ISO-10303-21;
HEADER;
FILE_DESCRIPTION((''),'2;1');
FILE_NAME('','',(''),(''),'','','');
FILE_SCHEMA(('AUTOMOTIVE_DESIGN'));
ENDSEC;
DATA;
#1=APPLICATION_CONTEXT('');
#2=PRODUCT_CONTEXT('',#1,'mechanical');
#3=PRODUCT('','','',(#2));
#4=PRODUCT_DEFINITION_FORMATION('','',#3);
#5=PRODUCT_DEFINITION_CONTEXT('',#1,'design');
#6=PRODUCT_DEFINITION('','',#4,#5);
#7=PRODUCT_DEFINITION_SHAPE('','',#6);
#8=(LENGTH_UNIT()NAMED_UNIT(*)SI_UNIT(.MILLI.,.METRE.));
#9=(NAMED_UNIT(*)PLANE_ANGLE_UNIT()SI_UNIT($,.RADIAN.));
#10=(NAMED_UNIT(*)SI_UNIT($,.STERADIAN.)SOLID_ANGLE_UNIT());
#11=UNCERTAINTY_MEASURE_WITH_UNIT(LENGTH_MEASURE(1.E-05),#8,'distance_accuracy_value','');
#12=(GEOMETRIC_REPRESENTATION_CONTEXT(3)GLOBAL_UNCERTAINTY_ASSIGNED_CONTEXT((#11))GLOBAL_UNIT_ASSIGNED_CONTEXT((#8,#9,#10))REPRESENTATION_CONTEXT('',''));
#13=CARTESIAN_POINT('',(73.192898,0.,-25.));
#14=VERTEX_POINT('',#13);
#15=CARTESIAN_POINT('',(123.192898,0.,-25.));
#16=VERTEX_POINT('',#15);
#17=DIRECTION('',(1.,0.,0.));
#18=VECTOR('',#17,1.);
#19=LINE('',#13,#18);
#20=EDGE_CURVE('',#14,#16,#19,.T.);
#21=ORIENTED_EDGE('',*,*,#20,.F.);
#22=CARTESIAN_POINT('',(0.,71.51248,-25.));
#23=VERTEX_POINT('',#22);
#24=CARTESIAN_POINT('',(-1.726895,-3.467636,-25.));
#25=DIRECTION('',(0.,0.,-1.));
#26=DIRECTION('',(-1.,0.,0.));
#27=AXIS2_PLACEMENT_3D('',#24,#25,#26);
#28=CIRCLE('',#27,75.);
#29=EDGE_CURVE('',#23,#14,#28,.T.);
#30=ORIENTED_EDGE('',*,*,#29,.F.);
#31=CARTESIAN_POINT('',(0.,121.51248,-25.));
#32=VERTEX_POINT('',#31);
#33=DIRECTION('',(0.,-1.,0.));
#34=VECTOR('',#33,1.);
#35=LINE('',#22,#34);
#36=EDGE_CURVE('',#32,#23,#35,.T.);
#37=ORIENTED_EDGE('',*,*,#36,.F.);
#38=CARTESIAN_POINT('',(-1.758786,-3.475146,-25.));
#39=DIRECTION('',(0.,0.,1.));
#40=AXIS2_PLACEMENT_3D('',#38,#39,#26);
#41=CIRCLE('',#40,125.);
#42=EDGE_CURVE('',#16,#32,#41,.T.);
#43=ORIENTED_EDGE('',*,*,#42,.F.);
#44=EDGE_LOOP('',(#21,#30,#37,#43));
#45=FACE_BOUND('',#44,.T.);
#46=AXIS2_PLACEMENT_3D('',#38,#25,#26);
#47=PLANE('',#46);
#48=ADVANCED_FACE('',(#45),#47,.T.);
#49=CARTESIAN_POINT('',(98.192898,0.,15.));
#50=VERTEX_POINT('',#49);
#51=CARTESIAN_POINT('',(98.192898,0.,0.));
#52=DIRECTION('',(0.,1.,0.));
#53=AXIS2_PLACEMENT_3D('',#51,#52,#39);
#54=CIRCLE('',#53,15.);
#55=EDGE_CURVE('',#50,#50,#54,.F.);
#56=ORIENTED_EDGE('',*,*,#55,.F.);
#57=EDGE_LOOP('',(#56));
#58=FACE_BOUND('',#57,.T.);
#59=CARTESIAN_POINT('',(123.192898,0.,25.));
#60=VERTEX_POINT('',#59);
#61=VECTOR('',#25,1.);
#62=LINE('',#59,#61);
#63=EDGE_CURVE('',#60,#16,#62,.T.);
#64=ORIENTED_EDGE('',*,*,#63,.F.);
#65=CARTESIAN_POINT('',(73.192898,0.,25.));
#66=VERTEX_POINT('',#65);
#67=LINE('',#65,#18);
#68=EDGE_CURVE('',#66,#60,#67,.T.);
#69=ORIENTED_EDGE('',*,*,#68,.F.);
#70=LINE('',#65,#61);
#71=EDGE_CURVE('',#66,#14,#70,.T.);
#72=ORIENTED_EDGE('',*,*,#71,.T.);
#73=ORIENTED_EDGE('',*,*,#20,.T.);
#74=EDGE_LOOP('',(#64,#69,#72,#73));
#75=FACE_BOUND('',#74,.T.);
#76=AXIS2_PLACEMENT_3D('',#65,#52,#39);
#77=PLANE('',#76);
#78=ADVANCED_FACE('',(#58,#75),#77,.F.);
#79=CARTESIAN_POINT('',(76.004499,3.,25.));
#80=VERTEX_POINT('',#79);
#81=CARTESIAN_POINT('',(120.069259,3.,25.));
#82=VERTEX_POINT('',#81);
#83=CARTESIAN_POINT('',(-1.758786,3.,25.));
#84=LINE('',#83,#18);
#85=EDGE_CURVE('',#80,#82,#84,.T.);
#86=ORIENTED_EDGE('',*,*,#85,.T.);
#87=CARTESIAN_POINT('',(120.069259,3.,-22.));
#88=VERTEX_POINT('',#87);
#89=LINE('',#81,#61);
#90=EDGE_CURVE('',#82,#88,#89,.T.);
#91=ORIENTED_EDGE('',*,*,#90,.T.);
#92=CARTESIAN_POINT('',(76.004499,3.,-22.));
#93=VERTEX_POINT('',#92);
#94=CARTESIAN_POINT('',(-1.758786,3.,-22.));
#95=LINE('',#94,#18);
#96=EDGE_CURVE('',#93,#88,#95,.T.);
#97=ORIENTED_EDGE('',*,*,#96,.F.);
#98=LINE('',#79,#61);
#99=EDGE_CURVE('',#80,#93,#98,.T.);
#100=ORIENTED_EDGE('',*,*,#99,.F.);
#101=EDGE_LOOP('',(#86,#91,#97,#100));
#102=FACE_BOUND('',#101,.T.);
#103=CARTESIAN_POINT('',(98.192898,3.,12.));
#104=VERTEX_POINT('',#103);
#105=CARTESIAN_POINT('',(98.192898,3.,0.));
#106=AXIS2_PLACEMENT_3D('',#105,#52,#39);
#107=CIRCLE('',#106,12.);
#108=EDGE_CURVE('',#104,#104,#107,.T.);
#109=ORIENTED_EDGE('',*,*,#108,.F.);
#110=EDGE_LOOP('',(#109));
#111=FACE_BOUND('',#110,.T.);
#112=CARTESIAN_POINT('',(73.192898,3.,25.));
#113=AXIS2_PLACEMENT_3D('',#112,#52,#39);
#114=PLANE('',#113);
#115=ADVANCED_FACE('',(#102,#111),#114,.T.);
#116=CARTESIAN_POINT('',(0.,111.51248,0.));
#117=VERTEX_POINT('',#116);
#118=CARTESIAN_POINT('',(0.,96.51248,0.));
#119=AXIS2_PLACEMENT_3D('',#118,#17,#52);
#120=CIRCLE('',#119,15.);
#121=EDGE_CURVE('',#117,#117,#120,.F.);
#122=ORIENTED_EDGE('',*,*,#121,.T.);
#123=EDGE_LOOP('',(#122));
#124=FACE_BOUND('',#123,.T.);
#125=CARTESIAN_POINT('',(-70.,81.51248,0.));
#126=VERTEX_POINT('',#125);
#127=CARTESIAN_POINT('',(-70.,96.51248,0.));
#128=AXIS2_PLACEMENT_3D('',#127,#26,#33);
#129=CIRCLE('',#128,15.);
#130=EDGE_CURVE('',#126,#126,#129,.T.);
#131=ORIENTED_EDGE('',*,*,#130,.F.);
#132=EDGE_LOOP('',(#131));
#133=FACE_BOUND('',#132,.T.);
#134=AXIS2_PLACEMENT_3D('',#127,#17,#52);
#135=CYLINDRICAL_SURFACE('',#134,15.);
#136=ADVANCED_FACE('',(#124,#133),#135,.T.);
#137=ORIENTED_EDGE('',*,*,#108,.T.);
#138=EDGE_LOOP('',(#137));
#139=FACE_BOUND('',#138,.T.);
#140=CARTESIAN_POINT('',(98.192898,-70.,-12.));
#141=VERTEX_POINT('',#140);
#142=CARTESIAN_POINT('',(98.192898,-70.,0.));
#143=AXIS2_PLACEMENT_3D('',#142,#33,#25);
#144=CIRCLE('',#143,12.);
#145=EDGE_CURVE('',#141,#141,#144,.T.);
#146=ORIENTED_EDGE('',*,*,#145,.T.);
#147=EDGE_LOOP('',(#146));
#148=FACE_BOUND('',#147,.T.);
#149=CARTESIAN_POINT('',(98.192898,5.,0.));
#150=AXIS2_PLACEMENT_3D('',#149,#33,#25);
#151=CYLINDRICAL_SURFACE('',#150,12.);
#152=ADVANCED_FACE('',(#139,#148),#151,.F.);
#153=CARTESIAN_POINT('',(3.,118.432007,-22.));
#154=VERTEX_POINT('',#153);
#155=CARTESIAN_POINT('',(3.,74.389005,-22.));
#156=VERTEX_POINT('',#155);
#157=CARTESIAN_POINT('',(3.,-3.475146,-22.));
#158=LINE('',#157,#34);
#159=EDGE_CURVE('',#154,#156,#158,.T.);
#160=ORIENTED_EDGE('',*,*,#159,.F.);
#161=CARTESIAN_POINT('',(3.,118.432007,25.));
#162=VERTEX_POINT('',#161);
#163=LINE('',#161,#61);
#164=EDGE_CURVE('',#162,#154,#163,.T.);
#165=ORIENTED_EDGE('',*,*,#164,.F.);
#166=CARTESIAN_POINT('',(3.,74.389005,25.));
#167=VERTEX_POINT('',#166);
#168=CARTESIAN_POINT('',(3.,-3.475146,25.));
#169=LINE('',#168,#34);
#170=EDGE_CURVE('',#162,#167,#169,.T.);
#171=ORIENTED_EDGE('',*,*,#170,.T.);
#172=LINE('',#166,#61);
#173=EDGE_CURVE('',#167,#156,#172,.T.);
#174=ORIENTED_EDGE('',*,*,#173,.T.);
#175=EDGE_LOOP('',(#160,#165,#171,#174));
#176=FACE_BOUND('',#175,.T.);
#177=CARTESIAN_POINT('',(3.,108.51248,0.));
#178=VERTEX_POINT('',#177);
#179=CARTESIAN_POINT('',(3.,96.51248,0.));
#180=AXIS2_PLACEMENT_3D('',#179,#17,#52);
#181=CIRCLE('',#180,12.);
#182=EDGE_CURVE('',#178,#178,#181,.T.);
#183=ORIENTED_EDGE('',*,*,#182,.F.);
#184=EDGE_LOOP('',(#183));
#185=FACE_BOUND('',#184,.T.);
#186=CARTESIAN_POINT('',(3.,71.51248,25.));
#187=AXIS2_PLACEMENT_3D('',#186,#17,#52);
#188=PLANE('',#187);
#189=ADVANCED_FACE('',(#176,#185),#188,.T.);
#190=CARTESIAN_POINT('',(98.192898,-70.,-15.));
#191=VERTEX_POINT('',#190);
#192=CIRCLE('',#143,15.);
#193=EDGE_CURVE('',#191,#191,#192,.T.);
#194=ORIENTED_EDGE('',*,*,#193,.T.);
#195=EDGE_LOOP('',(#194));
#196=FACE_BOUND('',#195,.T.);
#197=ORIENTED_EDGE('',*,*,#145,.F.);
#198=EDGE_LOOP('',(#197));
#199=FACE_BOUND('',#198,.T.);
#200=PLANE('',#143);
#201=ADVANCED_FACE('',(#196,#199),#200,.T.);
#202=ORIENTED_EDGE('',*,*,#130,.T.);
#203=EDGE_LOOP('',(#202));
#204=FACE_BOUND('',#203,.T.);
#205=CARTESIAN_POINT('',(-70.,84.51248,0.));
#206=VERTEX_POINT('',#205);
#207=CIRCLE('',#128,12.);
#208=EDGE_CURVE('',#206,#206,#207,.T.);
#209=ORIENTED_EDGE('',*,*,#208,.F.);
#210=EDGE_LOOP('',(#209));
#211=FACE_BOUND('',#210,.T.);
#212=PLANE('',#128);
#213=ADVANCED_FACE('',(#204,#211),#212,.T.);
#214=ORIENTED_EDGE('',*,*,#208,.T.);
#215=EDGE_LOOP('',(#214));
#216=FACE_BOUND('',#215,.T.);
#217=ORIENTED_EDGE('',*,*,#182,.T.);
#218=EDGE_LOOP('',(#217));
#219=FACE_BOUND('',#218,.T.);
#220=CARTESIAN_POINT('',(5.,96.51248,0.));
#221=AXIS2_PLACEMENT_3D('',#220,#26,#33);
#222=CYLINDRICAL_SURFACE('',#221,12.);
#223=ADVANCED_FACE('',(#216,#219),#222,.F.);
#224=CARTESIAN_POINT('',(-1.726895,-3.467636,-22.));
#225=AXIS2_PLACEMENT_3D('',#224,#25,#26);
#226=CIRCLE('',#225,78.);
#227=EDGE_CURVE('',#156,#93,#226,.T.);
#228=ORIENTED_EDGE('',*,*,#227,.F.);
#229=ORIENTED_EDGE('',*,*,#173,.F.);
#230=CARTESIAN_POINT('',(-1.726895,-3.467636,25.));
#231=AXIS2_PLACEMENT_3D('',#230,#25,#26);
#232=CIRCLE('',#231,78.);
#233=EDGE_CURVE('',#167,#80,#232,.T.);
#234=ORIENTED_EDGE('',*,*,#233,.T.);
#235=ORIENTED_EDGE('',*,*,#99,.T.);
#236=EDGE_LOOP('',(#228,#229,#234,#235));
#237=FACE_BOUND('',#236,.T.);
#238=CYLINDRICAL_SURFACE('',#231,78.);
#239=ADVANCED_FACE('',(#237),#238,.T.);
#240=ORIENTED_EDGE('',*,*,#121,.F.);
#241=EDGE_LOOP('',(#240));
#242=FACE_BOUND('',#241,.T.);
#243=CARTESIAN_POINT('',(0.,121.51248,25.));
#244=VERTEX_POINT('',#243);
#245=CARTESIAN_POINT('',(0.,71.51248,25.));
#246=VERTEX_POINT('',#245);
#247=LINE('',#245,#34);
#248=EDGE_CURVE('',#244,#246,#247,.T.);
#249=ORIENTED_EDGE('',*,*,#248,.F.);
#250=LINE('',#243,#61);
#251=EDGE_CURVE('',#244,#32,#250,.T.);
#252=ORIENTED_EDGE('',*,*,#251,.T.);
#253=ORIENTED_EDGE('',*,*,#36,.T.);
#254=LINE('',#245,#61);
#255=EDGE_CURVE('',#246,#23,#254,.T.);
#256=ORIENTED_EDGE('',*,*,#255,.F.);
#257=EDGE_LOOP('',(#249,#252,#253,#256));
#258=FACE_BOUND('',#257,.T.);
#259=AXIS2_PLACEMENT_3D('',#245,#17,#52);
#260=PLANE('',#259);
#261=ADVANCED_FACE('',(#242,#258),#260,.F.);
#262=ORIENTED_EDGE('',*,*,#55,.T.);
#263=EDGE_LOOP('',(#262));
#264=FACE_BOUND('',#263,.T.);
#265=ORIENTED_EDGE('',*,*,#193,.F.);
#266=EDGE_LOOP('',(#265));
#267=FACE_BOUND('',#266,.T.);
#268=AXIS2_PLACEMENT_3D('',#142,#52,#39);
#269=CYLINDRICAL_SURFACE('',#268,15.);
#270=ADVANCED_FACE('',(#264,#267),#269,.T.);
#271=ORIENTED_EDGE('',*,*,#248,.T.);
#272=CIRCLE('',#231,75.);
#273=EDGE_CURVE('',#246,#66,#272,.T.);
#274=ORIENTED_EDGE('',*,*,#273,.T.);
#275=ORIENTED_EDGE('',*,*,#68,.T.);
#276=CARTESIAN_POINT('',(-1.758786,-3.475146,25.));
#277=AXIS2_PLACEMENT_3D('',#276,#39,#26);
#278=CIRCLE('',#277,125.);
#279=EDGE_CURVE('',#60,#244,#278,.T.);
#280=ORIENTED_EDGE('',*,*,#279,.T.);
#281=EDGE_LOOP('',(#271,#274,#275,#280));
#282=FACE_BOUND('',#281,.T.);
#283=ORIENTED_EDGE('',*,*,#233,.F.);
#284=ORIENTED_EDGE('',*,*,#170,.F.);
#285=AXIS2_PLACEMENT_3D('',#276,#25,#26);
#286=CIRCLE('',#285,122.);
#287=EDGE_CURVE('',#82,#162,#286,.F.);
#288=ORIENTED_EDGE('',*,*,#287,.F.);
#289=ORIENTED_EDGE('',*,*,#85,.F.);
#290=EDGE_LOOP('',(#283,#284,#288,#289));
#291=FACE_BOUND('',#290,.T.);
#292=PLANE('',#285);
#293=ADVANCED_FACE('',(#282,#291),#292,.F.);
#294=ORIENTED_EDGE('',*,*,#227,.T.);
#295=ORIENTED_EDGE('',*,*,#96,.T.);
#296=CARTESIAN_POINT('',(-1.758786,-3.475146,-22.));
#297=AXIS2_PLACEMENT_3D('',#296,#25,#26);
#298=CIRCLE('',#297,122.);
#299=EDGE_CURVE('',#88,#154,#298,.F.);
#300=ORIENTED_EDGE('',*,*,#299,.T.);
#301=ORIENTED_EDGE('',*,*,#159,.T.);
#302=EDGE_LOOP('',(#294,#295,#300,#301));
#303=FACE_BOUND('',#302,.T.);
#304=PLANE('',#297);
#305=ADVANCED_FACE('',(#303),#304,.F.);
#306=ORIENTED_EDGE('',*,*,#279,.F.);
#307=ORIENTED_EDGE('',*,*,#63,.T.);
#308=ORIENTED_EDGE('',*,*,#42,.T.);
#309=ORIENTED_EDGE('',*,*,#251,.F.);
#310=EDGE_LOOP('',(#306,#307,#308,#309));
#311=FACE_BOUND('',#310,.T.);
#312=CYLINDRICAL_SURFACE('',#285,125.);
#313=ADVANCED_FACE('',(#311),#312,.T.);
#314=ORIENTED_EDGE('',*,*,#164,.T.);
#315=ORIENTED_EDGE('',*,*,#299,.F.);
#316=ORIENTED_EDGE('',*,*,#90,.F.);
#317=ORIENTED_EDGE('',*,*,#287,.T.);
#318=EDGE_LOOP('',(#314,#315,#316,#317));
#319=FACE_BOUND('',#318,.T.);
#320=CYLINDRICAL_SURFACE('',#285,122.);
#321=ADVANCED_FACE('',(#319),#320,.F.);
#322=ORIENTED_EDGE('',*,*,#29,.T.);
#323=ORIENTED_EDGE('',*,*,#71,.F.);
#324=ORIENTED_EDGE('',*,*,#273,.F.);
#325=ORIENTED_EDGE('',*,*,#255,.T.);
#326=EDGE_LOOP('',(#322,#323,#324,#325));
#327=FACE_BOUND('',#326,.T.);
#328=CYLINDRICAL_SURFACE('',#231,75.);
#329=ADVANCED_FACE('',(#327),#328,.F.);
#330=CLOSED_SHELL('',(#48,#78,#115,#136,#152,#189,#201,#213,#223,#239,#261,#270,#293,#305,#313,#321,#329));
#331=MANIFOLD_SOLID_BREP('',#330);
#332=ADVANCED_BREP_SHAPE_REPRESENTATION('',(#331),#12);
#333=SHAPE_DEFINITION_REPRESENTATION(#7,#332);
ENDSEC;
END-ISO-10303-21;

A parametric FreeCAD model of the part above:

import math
import FreeCAD as App
import Part
import Sketcher
from FreeCAD import Vector


def faces_at(feature, points):
    """Names of the faces that lie closest to the given points."""
    faces = feature.Shape.Faces
    near = lambda p: min(range(len(faces)), key=lambda i: faces[i].distToShape(Part.Vertex(*p))[0])
    return sorted({f"Face{near(p) + 1}" for p in points})

doc = App.newDocument("Part")
body = doc.addObject("PartDesign::Body", "Body")

# Sketch on XY plane
sketch1 = body.newObject("Sketcher::SketchObject", "Sketch")
sketch1.AttachmentSupport = (doc.getObject("XY_Plane"), [""])
sketch1.MapMode = "FlatFace"
sketch1.addGeometry([
    Part.LineSegment(Vector(0, 121.51248, 0), Vector(0, 71.51248, 0)),
    Part.ArcOfCircle(Part.Circle(Vector(-1.726895, -3.467636, 0), Vector(0, 0, 1), 75), math.radians(2.650023), math.radians(88.680633)),
    Part.LineSegment(Vector(73.192898, 0, 0), Vector(123.192898, 0, 0)),
    Part.ArcOfCircle(Part.Circle(Vector(-1.758786, -3.475146, 0), Vector(0, 0, 1), 125), math.radians(1.593095), math.radians(89.193805)),
], False)
sketch1.addConstraint([
    Sketcher.Constraint("Coincident", 0, 2, 1, 2),
    Sketcher.Constraint("Coincident", 1, 1, 2, 1),
    Sketcher.Constraint("Coincident", 2, 2, 3, 1),
    Sketcher.Constraint("Coincident", 3, 2, 0, 1),
    Sketcher.Constraint("Vertical", 0),
    Sketcher.Constraint("Horizontal", 2),
    Sketcher.Constraint("PointOnObject", 0, 2, -2),
    Sketcher.Constraint("PointOnObject", 1, 1, -1),
    Sketcher.Constraint("Equal", 2, 0),
    Sketcher.Constraint("Radius", 1, 75.0),
    Sketcher.Constraint("Radius", 3, 125.0),
    Sketcher.Constraint("DistanceX", 2, 1, 2, 2, 50.0),
    Sketcher.Constraint("DistanceX", -1, 1, 1, 1, 73.192898),
    Sketcher.Constraint("DistanceY", -1, 1, 0, 2, 71.51248),
])
pad1 = body.newObject("PartDesign::Pad", "Pad")
pad1.Profile = sketch1
pad1.Length = 50
pad1.Midplane = True
doc.recompute()

thickness = body.newObject("PartDesign::Thickness", "Thickness")
thickness.Base = (pad1, faces_at(pad1, [(61.596, 60.756, 25)]))
thickness.Value = 3
thickness.Reversed = True
thickness.Join = "Intersection"

# Sketch on YZ plane
sketch2 = body.newObject("Sketcher::SketchObject", "Sketch001")
sketch2.AttachmentSupport = (doc.getObject("YZ_Plane"), [""])
sketch2.MapMode = "FlatFace"
sketch2.addGeometry(Part.Circle(Vector(96.51248, 0, 0), Vector(0, 0, 1), 15), False)
sketch2.addConstraint([
    Sketcher.Constraint("PointOnObject", 0, 3, -1),
    Sketcher.Constraint("Diameter", 0, 30.0),
    Sketcher.Constraint("DistanceX", -1, 1, 0, 3, 96.51248),
])
pad2 = body.newObject("PartDesign::Pad", "Pad001")
pad2.Profile = sketch2
pad2.Length = 70
pad2.Reversed = True

# Sketch on YZ plane
sketch3 = body.newObject("Sketcher::SketchObject", "Sketch002")
sketch3.AttachmentSupport = (doc.getObject("YZ_Plane"), [""])
sketch3.MapMode = "FlatFace"
sketch3.AttachmentOffset = App.Placement(Vector(0, 0, -70), App.Rotation())
sketch3.addGeometry(Part.Circle(Vector(96.51248, 0, 0), Vector(0, 0, 1), 12), False)
sketch3.addConstraint([
    Sketcher.Constraint("PointOnObject", 0, 3, -1),
    Sketcher.Constraint("Diameter", 0, 24.0),
    Sketcher.Constraint("DistanceX", -1, 1, 0, 3, 96.51248),
])
pocket1 = body.newObject("PartDesign::Pocket", "Pocket")
pocket1.Profile = sketch3
pocket1.Length = 75
pocket1.Reversed = True

# Sketch on XZ plane
sketch4 = body.newObject("Sketcher::SketchObject", "Sketch003")
sketch4.AttachmentSupport = (doc.getObject("XZ_Plane"), [""])
sketch4.MapMode = "FlatFace"
sketch4.addGeometry(Part.Circle(Vector(98.192898, 0, 0), Vector(0, 0, 1), 15), False)
sketch4.addConstraint([
    Sketcher.Constraint("PointOnObject", 0, 3, -1),
    Sketcher.Constraint("Diameter", 0, 30.0),
    Sketcher.Constraint("DistanceX", -1, 1, 0, 3, 98.192898),
])
pad3 = body.newObject("PartDesign::Pad", "Pad002")
pad3.Profile = sketch4
pad3.Length = 70

# Sketch on XZ plane
sketch5 = body.newObject("Sketcher::SketchObject", "Sketch004")
sketch5.AttachmentSupport = (doc.getObject("XZ_Plane"), [""])
sketch5.MapMode = "FlatFace"
sketch5.AttachmentOffset = App.Placement(Vector(0, 0, 70), App.Rotation())
sketch5.addGeometry(Part.Circle(Vector(98.192898, 0, 0), Vector(0, 0, 1), 12), False)
sketch5.addConstraint([
    Sketcher.Constraint("PointOnObject", 0, 3, -1),
    Sketcher.Constraint("Diameter", 0, 24.0),
    Sketcher.Constraint("DistanceX", -1, 1, 0, 3, 98.192898),
])
pocket2 = body.newObject("PartDesign::Pocket", "Pocket001")
pocket2.Profile = sketch5
pocket2.Length = 75

doc.recompute()
